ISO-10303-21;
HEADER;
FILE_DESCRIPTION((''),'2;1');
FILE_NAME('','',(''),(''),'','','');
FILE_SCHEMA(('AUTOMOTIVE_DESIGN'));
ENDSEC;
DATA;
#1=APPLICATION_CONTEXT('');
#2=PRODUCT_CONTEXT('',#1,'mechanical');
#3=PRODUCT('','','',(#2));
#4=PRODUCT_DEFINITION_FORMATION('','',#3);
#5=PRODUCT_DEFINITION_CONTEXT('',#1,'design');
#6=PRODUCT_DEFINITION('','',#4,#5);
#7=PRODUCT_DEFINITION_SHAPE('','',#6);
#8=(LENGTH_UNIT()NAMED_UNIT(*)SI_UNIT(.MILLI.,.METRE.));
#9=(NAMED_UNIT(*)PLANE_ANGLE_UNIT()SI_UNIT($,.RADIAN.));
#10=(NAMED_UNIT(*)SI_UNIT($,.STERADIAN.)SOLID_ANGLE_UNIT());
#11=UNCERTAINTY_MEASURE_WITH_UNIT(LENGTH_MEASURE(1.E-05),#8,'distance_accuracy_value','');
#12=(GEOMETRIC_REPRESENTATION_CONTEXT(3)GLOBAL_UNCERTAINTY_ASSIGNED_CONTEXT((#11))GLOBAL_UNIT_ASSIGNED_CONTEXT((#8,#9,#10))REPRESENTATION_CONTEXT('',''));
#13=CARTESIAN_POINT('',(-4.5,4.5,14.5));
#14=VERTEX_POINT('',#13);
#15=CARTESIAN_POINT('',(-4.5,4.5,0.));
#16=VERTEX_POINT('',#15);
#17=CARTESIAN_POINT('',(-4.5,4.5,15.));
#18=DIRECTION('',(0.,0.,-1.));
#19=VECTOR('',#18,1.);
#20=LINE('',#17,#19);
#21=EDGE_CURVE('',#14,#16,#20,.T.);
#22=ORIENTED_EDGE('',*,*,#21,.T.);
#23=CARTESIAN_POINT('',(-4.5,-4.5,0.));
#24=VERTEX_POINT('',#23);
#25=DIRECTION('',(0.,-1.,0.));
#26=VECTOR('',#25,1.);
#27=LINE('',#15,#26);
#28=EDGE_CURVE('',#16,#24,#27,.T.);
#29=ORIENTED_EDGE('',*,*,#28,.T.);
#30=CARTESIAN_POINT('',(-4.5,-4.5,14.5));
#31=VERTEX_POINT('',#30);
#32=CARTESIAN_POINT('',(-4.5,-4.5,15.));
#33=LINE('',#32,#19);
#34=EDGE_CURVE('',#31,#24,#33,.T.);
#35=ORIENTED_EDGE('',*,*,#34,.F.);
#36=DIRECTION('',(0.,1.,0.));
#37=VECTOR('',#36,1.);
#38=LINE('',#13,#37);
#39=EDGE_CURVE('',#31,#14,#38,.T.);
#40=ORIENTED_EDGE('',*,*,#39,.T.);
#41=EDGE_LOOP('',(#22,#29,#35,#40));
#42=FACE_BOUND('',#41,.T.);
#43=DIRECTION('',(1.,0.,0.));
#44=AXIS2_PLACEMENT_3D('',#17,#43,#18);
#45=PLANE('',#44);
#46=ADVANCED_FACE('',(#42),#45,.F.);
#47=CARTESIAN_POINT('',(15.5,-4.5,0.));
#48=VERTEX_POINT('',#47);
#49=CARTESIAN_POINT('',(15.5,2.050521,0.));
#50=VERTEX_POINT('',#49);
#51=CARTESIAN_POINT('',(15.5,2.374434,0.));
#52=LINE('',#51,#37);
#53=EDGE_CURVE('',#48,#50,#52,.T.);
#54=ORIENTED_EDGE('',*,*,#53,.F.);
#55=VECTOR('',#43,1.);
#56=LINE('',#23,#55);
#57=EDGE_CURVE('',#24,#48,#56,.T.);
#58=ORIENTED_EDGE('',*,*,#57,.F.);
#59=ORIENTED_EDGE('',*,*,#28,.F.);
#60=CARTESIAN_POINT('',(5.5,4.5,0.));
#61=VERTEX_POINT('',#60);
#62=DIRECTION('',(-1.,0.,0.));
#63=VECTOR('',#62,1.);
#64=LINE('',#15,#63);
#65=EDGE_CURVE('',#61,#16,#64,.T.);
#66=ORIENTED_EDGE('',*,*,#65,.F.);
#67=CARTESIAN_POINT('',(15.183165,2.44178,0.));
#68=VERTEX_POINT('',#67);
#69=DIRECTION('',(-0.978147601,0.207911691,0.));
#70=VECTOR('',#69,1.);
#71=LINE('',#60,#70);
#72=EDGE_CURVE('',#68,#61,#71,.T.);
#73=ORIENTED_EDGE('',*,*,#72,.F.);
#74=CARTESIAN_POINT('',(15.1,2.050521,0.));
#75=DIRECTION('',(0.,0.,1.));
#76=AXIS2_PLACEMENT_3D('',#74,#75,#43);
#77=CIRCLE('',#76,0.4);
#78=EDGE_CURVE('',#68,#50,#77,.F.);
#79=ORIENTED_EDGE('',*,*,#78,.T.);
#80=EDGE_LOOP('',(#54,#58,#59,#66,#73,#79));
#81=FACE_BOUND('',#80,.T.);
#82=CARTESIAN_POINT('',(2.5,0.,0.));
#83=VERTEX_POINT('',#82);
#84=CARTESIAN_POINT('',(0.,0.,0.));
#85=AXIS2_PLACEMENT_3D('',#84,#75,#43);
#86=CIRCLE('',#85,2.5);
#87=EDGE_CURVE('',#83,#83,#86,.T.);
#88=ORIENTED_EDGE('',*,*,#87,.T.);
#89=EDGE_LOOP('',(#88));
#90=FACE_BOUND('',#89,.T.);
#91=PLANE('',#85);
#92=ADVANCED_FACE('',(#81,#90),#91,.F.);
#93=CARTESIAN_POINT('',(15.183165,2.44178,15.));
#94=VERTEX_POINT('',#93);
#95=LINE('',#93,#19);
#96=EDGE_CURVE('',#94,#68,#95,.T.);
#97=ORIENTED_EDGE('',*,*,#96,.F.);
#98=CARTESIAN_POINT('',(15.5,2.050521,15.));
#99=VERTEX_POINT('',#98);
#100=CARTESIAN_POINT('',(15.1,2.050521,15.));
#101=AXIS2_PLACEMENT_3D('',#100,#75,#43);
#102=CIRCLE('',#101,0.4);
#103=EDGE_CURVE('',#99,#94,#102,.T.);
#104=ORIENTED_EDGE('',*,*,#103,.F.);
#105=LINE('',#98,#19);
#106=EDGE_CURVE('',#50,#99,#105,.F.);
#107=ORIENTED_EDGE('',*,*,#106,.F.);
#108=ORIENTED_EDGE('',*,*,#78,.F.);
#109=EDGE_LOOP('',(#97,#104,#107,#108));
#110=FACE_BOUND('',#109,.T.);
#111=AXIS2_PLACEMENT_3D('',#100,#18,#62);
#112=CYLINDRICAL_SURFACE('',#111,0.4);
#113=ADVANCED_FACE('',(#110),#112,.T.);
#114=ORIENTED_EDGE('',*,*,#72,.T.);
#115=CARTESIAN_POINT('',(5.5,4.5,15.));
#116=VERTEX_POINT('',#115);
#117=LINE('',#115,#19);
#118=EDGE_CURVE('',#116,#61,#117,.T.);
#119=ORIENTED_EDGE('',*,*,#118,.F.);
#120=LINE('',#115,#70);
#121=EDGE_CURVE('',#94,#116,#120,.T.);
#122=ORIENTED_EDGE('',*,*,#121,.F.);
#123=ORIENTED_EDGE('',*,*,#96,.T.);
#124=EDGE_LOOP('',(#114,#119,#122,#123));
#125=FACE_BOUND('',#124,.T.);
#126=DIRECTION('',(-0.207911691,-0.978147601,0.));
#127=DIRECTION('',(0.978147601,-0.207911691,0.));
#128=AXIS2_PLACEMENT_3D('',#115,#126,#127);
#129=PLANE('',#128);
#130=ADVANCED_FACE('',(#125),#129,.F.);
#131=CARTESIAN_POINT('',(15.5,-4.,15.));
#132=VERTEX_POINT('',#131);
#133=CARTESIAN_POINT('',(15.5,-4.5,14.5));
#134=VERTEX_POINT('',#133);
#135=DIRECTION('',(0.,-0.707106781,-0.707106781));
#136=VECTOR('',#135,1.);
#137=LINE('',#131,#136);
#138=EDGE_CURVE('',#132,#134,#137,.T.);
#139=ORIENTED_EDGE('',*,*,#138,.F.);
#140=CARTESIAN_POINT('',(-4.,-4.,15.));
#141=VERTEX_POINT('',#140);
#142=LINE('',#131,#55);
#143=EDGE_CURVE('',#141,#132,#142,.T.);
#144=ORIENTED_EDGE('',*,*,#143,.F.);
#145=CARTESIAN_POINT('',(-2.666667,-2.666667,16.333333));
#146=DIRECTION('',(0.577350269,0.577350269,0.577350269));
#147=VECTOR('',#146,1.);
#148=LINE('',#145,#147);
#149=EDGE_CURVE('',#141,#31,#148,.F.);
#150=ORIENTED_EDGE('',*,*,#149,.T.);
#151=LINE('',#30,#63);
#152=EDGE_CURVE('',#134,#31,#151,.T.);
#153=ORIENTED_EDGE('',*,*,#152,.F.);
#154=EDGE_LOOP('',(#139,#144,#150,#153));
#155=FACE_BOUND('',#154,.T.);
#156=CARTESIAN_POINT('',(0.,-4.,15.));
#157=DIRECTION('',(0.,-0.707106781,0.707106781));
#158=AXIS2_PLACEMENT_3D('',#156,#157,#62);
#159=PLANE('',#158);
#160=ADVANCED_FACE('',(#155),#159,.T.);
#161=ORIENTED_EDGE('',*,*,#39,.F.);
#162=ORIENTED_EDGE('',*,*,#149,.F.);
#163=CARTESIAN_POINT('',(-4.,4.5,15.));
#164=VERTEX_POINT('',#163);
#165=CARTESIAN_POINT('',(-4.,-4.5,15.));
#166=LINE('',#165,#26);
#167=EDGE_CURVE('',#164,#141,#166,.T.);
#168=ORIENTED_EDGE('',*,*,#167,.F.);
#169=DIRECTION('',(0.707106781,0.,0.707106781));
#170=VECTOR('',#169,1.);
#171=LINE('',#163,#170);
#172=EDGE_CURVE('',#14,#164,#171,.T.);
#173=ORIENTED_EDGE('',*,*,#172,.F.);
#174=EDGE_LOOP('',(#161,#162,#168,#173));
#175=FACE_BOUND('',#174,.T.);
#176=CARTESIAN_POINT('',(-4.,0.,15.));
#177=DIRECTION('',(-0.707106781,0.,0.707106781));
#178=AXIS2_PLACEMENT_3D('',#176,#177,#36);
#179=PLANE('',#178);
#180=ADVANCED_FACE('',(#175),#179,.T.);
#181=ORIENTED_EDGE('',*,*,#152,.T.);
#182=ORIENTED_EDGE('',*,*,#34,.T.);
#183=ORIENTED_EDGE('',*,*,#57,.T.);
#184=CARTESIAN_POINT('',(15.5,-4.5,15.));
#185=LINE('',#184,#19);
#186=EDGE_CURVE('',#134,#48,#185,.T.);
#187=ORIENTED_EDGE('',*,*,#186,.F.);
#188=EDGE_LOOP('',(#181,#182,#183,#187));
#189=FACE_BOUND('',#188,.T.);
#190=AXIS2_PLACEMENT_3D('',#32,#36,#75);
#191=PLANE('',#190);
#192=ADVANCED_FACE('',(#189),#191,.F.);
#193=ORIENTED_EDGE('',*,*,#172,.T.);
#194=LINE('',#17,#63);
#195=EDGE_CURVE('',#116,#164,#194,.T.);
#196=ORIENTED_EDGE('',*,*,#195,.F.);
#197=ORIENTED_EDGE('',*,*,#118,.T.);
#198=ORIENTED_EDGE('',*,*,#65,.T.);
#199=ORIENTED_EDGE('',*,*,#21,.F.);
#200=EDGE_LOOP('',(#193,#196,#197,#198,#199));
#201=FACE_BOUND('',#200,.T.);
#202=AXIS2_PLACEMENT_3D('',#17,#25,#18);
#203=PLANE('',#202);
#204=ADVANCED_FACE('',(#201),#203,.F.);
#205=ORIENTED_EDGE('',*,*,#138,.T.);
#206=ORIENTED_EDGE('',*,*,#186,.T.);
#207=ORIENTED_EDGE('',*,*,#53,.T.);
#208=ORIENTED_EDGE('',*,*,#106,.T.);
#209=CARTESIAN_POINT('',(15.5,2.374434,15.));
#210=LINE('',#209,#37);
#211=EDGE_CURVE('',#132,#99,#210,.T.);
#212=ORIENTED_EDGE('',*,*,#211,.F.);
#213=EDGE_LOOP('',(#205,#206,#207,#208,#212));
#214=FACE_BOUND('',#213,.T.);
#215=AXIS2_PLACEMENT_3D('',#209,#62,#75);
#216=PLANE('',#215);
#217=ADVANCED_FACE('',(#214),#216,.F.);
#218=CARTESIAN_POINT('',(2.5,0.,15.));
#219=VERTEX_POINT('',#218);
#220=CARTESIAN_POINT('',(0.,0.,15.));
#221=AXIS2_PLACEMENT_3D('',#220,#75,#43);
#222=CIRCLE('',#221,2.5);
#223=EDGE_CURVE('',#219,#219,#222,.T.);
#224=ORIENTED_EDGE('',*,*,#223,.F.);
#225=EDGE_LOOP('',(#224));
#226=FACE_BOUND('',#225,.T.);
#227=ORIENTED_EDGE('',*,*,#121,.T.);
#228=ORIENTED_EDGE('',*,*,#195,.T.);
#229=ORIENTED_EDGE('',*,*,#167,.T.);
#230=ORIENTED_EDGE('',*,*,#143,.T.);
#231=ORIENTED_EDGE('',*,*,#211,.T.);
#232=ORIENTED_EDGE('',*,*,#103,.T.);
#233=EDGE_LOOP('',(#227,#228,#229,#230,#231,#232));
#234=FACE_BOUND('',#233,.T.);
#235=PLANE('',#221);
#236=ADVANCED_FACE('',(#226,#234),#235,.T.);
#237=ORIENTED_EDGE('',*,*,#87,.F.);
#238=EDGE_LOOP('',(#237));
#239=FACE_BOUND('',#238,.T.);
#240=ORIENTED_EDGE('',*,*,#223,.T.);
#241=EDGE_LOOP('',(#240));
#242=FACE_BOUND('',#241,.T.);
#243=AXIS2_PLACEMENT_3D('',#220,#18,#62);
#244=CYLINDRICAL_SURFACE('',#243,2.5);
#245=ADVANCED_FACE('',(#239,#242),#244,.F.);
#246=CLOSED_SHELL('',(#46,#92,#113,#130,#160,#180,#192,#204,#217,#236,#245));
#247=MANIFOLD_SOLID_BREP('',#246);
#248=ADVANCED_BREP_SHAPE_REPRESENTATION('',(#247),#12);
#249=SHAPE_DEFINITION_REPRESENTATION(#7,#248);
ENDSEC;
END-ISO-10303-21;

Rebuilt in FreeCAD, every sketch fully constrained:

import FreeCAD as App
import Part
import Sketcher

V = App.Vector
Q = App.Units.Quantity


def edges_at(feature, points):
    """Names of the edges that pass closest to the given points."""
    edges = feature.Shape.Edges
    near = lambda p: min(range(len(edges)), key=lambda i: edges[i].distToShape(Part.Vertex(*p))[0])
    return sorted({f"Edge{near(p) + 1}" for p in points})

doc = App.newDocument("Part")
params = doc.addObject("Spreadsheet::Sheet", "Params")
for row, (alias, value) in enumerate([
    ("sketch1_diameter", "5 mm"),
    ("sketch1_width", "10 mm"),
    ("sketch1_width2", "20 mm"),
    ("sketch1_height", "9 mm"),
    ("pad1_length", "15 mm"),
    ("fillet_radius", "0.4 mm"),
    ("chamfer_size", "0.5 mm"),
], start=1):
    params.set(f"A{row}", alias)
    params.set(f"B{row}", "=" + value)
    params.setAlias(f"B{row}", alias)

body = doc.addObject("PartDesign::Body", "Body")

# Sketch on XY plane
sketch1 = body.newObject("Sketcher::SketchObject", "Sketch")
sketch1.AttachmentSupport = (doc.getObject("XY_Plane"), [""])
sketch1.MapMode = "FlatFace"
sketch1.addGeometry([
    Part.LineSegment(V(15.5, 2.374434, 0), V(5.5, 4.5, 0)),  # 0
    Part.LineSegment(V(5.5, 4.5, 0), V(-4.5, 4.5, 0)),  # 1
    Part.LineSegment(V(-4.5, 4.5, 0), V(-4.5, -4.5, 0)),  # 2
    Part.LineSegment(V(-4.5, -4.5, 0), V(15.5, -4.5, 0)),  # 3
    Part.LineSegment(V(15.5, -4.5, 0), V(15.5, 2.374434, 0)),  # 4
    Part.Circle(V(0, 0, 0), V(0, 0, 1), 2.5),  # 5
], False)
sketch1.addConstraint([
    Sketcher.Constraint("Coincident", 0, 2, 1, 1),
    Sketcher.Constraint("Coincident", 1, 2, 2, 1),
    Sketcher.Constraint("Coincident", 2, 2, 3, 1),
    Sketcher.Constraint("Coincident", 3, 2, 4, 1),
    Sketcher.Constraint("Coincident", 4, 2, 0, 1),
    Sketcher.Constraint("Horizontal", 1),
    Sketcher.Constraint("Vertical", 2),
    Sketcher.Constraint("Horizontal", 3),
    Sketcher.Constraint("Vertical", 4),
    Sketcher.Constraint("Coincident", 5, 3, -1, 1),
    Sketcher.Constraint("Diameter", 5, 5.0),
    Sketcher.Constraint("DistanceX", 1, 2, 1, 1, 10.0),
    Sketcher.Constraint("DistanceX", 3, 1, 3, 2, 20.0),
    Sketcher.Constraint("DistanceY", 2, 2, 2, 1, 9.0),
    Sketcher.Constraint("Angle", 0, Q("168 deg")),
    Sketcher.Constraint("DistanceX", -1, 1, 0, 2, 5.5),
    Sketcher.Constraint("DistanceY", -1, 1, 0, 2, 4.5),
])
sketch1.setExpression("Constraints[10]", "Params.sketch1_diameter")
sketch1.setExpression("Constraints[11]", "Params.sketch1_width")
sketch1.setExpression("Constraints[12]", "Params.sketch1_width2")
sketch1.setExpression("Constraints[13]", "Params.sketch1_height")
pad1 = body.newObject("PartDesign::Pad", "Pad")
pad1.Profile = sketch1
pad1.setExpression("Length", "Params.pad1_length")
doc.recompute()

fillet = body.newObject("PartDesign::Fillet", "Fillet")
fillet.Base = (pad1, edges_at(pad1, [(15.5, 2.374, 7.5)]))
fillet.setExpression("Radius", "Params.fillet_radius")
doc.recompute()

chamfer = body.newObject("PartDesign::Chamfer", "Chamfer")
chamfer.Base = (fillet, edges_at(fillet, [(-4.5, 0, 15), (5.5, -4.5, 15)]))
chamfer.setExpression("Size", "Params.chamfer_size")

doc.recompute()
